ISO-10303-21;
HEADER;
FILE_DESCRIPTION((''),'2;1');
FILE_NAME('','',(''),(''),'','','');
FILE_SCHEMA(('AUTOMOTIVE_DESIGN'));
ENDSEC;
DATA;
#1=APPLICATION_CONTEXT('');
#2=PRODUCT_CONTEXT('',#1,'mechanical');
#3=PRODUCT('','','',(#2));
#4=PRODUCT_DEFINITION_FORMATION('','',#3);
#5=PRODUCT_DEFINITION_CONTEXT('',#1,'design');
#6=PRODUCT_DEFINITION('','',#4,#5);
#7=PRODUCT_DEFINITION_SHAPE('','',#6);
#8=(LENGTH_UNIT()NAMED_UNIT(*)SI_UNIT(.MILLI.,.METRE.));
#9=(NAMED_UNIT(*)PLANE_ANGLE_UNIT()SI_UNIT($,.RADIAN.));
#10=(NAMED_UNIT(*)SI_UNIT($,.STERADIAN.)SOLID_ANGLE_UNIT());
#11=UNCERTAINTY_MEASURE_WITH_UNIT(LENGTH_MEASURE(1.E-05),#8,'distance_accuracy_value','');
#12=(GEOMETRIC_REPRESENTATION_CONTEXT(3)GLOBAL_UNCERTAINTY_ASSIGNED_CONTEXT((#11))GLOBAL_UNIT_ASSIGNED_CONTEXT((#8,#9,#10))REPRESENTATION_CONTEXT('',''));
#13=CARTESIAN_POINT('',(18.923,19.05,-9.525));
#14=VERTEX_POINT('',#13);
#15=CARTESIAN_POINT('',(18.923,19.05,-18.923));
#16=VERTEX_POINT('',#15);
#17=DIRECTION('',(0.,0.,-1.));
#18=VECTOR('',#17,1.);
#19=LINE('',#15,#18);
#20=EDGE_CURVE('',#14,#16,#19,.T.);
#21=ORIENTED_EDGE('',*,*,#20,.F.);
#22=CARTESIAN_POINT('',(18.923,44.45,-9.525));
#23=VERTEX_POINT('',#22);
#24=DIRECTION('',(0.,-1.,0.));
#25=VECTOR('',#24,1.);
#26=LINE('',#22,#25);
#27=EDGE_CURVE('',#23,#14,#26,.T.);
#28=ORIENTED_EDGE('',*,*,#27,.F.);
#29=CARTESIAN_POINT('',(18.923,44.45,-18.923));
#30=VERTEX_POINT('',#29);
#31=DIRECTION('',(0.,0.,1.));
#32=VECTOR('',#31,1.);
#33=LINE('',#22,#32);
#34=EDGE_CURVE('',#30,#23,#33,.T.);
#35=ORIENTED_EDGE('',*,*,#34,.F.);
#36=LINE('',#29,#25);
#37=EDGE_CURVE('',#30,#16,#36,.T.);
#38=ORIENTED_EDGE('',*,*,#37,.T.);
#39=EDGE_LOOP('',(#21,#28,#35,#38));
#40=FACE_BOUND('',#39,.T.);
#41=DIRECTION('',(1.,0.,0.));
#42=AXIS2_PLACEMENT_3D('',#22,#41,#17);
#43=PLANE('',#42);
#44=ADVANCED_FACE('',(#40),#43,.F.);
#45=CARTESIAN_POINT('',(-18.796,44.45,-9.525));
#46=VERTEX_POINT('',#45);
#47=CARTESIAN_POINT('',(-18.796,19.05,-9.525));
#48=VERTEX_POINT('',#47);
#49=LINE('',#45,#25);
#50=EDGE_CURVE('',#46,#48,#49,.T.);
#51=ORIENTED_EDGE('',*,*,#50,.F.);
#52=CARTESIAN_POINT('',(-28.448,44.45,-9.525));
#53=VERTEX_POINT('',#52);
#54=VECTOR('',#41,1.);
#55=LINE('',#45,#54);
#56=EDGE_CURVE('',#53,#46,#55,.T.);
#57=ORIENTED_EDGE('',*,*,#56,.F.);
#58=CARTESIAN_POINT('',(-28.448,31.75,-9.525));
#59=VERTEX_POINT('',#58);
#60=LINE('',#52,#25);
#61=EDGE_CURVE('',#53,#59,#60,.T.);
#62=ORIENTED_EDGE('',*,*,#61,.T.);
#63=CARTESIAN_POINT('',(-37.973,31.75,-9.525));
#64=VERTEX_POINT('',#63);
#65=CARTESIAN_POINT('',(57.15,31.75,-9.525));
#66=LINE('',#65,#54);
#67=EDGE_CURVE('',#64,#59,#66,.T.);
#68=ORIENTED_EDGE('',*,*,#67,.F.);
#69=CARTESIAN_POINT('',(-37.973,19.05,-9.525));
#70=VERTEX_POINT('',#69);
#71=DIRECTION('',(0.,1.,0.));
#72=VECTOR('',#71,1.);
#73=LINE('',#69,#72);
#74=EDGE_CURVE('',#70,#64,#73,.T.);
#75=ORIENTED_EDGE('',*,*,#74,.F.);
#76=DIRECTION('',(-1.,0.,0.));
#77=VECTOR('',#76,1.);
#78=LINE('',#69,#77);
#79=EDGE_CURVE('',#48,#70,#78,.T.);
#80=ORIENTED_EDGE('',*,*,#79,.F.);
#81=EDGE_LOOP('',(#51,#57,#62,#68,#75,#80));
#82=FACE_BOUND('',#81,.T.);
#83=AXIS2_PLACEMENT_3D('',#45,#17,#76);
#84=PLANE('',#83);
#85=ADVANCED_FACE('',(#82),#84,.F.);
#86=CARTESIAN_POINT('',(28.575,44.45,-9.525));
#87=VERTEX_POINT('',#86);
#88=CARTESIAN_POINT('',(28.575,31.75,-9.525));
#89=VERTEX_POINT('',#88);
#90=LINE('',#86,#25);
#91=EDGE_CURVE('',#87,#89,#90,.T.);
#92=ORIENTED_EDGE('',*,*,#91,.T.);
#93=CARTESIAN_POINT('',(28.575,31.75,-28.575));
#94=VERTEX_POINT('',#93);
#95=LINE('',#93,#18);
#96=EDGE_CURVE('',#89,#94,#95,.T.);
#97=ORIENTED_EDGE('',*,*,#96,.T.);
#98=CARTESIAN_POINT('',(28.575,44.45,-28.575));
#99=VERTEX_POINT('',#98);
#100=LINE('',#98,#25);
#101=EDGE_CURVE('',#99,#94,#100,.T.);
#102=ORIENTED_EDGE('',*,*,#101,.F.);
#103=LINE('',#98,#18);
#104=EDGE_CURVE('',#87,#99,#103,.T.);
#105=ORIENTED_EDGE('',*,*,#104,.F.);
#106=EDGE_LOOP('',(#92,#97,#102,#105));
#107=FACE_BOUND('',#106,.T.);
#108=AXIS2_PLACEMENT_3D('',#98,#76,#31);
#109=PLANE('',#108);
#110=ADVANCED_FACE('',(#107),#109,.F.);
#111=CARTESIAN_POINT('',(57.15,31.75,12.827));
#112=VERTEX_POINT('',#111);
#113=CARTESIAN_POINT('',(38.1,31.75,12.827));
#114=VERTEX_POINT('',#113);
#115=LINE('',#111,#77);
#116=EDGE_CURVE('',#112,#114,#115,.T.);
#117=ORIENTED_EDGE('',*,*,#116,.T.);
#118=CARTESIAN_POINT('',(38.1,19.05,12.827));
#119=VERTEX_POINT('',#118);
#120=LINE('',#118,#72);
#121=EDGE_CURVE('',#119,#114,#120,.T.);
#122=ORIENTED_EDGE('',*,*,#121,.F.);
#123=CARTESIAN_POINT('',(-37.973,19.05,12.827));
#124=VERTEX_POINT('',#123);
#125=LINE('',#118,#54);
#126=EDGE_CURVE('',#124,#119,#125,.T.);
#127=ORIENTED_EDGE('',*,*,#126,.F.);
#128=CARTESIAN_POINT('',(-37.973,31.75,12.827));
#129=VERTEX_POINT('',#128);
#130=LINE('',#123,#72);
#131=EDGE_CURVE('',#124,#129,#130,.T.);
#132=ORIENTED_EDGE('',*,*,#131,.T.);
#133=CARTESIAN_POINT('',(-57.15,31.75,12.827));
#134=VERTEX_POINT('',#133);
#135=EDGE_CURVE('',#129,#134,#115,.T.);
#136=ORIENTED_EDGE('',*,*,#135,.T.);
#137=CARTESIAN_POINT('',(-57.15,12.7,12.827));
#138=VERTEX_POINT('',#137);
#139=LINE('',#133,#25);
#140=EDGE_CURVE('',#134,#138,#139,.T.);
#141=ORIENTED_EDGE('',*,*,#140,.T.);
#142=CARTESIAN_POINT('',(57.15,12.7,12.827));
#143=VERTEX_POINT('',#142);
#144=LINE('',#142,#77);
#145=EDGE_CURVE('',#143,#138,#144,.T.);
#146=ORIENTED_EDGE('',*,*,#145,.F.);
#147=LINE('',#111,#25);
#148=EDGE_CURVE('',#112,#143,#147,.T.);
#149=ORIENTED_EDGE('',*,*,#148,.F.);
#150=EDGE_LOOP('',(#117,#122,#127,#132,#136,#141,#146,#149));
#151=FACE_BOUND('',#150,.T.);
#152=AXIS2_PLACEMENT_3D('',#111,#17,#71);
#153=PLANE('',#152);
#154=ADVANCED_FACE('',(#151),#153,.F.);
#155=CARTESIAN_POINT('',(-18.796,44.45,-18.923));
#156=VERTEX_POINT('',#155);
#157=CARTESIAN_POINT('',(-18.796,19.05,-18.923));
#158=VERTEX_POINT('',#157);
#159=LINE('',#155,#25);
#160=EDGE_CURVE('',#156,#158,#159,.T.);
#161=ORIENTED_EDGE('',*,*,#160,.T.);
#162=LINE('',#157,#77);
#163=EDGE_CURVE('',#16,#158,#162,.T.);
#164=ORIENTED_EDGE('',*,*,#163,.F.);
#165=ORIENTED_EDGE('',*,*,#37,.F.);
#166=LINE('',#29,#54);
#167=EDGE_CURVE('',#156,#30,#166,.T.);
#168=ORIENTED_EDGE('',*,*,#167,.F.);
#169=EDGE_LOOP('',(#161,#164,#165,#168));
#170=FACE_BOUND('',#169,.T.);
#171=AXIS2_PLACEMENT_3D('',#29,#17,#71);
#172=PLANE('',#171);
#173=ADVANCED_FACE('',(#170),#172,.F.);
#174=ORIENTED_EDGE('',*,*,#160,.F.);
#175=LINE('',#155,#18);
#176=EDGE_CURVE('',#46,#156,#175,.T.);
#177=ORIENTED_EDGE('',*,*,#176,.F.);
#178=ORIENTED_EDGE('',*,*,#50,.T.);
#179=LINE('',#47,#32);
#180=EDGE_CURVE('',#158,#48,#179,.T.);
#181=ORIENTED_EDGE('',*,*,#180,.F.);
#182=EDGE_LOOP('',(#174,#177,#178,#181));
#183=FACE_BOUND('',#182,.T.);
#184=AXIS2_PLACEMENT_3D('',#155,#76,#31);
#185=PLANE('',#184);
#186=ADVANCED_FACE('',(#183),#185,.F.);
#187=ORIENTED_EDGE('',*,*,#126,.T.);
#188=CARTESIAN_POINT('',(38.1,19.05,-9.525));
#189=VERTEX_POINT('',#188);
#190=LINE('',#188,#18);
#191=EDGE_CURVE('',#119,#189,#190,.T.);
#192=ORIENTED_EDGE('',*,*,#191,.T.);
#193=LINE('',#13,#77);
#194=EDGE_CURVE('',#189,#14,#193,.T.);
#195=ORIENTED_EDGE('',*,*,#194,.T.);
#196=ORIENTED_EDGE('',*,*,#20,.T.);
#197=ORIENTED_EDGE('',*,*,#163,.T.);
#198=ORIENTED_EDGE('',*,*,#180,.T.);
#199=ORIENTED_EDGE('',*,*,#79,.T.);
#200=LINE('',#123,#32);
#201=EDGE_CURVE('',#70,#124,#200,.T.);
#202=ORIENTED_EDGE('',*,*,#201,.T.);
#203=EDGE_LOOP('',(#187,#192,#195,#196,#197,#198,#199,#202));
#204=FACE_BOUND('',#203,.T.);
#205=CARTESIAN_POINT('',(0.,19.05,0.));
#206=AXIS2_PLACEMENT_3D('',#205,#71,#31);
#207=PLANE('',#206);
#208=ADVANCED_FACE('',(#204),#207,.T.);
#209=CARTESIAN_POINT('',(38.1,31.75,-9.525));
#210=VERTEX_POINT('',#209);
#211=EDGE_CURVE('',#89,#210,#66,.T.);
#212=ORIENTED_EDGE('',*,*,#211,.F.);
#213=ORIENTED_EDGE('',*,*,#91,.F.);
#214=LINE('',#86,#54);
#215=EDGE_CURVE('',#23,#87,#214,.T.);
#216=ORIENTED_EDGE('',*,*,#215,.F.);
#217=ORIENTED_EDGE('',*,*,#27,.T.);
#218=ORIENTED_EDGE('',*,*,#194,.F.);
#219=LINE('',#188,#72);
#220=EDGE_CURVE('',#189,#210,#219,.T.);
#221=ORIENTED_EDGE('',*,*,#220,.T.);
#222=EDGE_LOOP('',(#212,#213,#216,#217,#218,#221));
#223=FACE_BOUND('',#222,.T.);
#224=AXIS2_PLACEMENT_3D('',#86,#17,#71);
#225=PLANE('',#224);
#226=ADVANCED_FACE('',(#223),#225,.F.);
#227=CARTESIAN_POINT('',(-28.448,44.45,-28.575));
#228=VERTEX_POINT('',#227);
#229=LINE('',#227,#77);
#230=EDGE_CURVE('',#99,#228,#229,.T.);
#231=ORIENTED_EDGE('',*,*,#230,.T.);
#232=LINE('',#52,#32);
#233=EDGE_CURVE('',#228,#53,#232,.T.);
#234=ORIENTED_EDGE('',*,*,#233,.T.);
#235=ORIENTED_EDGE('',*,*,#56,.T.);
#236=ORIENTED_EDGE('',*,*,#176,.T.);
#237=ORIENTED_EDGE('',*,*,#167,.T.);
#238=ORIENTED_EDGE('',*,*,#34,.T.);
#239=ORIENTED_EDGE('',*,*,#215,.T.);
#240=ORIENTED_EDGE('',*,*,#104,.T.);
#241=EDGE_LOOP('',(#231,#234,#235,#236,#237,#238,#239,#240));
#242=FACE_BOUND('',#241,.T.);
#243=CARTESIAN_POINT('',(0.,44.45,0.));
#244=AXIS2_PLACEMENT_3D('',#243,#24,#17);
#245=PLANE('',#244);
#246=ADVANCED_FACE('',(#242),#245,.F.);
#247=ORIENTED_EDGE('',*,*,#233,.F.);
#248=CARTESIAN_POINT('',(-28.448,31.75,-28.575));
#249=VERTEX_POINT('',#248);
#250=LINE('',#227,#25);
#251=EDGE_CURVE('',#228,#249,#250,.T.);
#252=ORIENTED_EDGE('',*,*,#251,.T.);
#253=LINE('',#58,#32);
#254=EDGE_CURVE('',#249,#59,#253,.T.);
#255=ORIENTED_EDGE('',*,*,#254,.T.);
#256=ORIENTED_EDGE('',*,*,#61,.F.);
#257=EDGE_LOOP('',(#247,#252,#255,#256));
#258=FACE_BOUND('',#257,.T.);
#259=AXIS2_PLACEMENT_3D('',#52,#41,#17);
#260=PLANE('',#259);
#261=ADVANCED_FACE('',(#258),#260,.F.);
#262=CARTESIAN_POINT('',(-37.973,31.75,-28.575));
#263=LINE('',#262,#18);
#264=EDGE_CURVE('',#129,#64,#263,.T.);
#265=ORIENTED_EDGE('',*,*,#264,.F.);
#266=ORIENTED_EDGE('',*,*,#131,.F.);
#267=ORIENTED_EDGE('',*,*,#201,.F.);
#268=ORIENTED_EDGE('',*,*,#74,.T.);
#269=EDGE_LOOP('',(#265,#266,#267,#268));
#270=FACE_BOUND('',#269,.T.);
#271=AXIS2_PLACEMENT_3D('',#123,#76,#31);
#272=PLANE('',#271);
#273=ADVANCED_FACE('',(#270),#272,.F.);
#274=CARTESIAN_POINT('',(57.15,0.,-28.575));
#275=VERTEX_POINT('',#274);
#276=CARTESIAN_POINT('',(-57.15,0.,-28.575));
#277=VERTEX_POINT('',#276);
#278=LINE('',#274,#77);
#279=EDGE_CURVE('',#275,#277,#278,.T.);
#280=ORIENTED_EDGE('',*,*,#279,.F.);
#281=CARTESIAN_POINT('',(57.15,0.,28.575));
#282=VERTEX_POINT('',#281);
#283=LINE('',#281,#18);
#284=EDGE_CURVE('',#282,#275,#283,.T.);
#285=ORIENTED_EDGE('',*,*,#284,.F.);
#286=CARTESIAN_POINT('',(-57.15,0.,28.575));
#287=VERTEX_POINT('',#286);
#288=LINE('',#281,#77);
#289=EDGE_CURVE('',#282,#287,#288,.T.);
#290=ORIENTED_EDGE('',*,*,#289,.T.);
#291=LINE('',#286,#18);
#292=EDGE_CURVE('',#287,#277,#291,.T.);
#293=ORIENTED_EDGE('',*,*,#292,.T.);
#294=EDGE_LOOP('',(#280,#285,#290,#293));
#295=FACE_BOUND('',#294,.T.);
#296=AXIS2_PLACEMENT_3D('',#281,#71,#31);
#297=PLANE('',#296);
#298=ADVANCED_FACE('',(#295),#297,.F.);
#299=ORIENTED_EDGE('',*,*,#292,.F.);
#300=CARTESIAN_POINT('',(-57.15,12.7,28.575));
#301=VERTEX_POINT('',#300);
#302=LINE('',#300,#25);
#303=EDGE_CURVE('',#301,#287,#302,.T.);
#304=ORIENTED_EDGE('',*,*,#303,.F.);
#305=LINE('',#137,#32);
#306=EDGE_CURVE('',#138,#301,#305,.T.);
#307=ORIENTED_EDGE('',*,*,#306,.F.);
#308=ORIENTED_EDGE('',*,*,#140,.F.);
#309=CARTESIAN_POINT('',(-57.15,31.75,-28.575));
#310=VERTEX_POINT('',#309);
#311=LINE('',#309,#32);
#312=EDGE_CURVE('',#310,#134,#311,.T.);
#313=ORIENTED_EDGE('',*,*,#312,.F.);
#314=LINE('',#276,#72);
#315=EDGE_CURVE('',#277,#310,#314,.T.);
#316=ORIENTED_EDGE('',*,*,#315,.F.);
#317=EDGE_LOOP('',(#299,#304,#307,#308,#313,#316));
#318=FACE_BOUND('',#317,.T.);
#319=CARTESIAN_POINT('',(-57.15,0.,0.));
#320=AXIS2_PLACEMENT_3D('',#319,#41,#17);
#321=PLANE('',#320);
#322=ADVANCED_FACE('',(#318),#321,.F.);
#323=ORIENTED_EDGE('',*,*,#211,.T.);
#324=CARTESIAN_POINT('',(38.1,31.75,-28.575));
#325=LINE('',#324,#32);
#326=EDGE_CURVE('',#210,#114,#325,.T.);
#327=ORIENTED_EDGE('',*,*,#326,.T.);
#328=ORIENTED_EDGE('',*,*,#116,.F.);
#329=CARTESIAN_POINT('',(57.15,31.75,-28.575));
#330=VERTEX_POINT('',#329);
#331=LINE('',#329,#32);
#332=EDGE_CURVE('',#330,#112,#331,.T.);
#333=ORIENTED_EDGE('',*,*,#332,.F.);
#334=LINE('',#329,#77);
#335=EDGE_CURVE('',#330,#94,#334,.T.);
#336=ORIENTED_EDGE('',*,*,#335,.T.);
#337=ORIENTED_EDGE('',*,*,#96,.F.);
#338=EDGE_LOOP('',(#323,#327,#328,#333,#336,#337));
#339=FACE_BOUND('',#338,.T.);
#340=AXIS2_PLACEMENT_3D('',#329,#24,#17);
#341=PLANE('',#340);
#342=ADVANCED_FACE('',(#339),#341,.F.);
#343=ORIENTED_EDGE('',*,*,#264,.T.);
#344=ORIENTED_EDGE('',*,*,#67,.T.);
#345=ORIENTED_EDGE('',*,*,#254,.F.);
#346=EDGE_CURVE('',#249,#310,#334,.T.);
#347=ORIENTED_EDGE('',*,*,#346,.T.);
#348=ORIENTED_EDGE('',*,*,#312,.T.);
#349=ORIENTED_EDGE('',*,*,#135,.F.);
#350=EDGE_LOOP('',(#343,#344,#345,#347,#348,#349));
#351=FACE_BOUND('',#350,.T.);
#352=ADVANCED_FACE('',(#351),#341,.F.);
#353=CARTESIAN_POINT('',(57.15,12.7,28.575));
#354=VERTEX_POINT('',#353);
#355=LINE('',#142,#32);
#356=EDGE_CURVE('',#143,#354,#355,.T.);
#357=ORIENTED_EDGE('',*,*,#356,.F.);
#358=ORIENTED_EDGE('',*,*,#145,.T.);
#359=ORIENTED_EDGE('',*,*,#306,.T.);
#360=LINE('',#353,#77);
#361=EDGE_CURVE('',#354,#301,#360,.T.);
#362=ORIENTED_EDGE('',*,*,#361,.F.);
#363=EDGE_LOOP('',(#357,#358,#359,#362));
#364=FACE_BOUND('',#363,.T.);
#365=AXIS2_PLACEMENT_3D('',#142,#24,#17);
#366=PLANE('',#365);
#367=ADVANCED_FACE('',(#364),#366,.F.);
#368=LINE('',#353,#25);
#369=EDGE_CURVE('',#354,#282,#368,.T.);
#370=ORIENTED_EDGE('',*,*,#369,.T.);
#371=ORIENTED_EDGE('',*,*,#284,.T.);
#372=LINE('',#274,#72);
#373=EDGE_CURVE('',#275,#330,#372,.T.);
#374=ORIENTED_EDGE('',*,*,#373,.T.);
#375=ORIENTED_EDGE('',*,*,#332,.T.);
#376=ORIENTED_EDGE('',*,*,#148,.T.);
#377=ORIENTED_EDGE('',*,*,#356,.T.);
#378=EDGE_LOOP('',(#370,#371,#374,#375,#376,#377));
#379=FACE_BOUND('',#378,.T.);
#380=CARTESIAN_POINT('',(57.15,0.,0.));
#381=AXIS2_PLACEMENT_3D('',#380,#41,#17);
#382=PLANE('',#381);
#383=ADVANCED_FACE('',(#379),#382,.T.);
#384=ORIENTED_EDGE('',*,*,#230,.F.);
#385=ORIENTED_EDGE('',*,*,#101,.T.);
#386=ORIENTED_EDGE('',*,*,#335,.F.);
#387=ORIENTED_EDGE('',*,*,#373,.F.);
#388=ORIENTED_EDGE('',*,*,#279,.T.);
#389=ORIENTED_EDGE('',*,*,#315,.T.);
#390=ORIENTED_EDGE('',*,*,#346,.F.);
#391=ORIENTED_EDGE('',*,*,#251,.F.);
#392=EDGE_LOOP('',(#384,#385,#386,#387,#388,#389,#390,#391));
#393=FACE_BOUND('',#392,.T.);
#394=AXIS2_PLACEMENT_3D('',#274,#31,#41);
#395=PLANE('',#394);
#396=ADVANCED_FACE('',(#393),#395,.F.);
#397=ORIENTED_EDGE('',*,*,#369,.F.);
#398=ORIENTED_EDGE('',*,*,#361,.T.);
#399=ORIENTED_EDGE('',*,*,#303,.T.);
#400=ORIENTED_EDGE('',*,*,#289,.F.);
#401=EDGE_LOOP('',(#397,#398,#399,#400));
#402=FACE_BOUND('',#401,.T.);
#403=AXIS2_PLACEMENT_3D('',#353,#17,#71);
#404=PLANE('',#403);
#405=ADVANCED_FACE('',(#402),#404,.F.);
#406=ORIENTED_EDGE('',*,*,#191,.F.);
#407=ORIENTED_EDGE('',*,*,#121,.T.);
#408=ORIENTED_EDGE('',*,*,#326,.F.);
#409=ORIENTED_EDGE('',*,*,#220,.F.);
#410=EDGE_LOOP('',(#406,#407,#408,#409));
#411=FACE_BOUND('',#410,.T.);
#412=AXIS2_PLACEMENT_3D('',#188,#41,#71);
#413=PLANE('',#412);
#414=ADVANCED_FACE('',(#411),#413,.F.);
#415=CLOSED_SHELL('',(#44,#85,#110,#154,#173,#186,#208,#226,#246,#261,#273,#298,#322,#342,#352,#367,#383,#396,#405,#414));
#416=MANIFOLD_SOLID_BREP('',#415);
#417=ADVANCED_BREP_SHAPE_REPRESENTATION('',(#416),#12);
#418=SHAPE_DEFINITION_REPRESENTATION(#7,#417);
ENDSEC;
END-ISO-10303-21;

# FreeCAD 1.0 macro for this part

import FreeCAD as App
import Part
import Sketcher
from FreeCAD import Vector
Q = App.Units.Quantity

doc = App.newDocument("Part")
body = doc.addObject("PartDesign::Body", "Body")

# Sketch on YZ plane
sketch1 = doc.addObject("Sketcher::SketchObject", "Sketch")
body.addObject(sketch1)
sketch1.AttachmentSupport = (doc.YZ_Plane, [""])
sketch1.MapMode = "FlatFace"
sketch1.addGeometry([
    Part.LineSegment(Vector(0, 28.575, 0), Vector(0, -28.575, 0)),  # 0
    Part.LineSegment(Vector(0, -28.575, 0), Vector(31.75, -28.575, 0)),  # 1
    Part.LineSegment(Vector(31.75, -28.575, 0), Vector(31.75, 12.827, 0)),  # 2
    Part.LineSegment(Vector(31.75, 12.827, 0), Vector(12.7, 12.827, 0)),  # 3
    Part.LineSegment(Vector(12.7, 12.827, 0), Vector(12.7, 28.575, 0)),  # 4
    Part.LineSegment(Vector(12.7, 28.575, 0), Vector(0, 28.575, 0)),  # 5
], False)
sketch1.addConstraint([
    Sketcher.Constraint("Coincident", 0, 2, 1, 1),
    Sketcher.Constraint("Coincident", 1, 2, 2, 1),
    Sketcher.Constraint("Coincident", 2, 2, 3, 1),
    Sketcher.Constraint("Coincident", 3, 2, 4, 1),
    Sketcher.Constraint("Coincident", 4, 2, 5, 1),
    Sketcher.Constraint("Coincident", 5, 2, 0, 1),
    Sketcher.Constraint("Vertical", 0),
    Sketcher.Constraint("Horizontal", 1),
    Sketcher.Constraint("Vertical", 2),
    Sketcher.Constraint("Horizontal", 3),
    Sketcher.Constraint("Vertical", 4),
    Sketcher.Constraint("Horizontal", 5),
    Sketcher.Constraint("Symmetric", 0, 2, 5, 2, -1, 1),
    Sketcher.Constraint("DistanceX", 5, 2, 5, 1, Q("0.5 in")),
    Sketcher.Constraint("DistanceX", 1, 1, 1, 2, Q("1.25 in")),
    Sketcher.Constraint("DistanceY", 0, 2, 0, 1, Q("2.25 in")),
    Sketcher.Constraint("DistanceY", 2, 1, 2, 2, Q("1.63 in")),
])
pad1 = doc.addObject("PartDesign::Pad", "Pad")
body.addObject(pad1)
pad1.Profile = sketch1
pad1.Length = Q("4.5 in")
pad1.Midplane = True

# Sketch on XZ plane
sketch2 = doc.addObject("Sketcher::SketchObject", "Sketch001")
body.addObject(sketch2)
sketch2.AttachmentSupport = (doc.XZ_Plane, [""])
sketch2.MapMode = "FlatFace"
sketch2.AttachmentOffset = App.Placement(Vector(0, 0, -1.25 * 25.4), App.Rotation())
sketch2.addGeometry([
    Part.LineSegment(Vector(28.575, -28.575, 0), Vector(-28.448, -28.575, 0)),  # 0
    Part.LineSegment(Vector(-28.448, -28.575, 0), Vector(-28.448, -9.525, 0)),  # 1
    Part.LineSegment(Vector(-28.448, -9.525, 0), Vector(-18.796, -9.525, 0)),  # 2
    Part.LineSegment(Vector(-18.796, -9.525, 0), Vector(-18.796, -18.923, 0)),  # 3
    Part.LineSegment(Vector(-18.796, -18.923, 0), Vector(18.923, -18.923, 0)),  # 4
    Part.LineSegment(Vector(18.923, -18.923, 0), Vector(18.923, -9.525, 0)),  # 5
    Part.LineSegment(Vector(18.923, -9.525, 0), Vector(28.575, -9.525, 0)),  # 6
    Part.LineSegment(Vector(28.575, -9.525, 0), Vector(28.575, -28.575, 0)),  # 7
], False)
sketch2.addConstraint([
    Sketcher.Constraint("Coincident", 0, 2, 1, 1),
    Sketcher.Constraint("Coincident", 1, 2, 2, 1),
    Sketcher.Constraint("Coincident", 2, 2, 3, 1),
    Sketcher.Constraint("Coincident", 3, 2, 4, 1),
    Sketcher.Constraint("Coincident", 4, 2, 5, 1),
    Sketcher.Constraint("Coincident", 5, 2, 6, 1),
    Sketcher.Constraint("Coincident", 6, 2, 7, 1),
    Sketcher.Constraint("Coincident", 7, 2, 0, 1),
    Sketcher.Constraint("Horizontal", 0),
    Sketcher.Constraint("Vertical", 1),
    Sketcher.Constraint("Horizontal", 2),
    Sketcher.Constraint("Vertical", 3),
    Sketcher.Constraint("Horizontal", 4),
    Sketcher.Constraint("Vertical", 5),
    Sketcher.Constraint("Horizontal", 6),
    Sketcher.Constraint("Vertical", 7),
    Sketcher.Constraint("Horizontal", 2, 2, 5, 2),
    Sketcher.Constraint("Equal", 2, 6),
    Sketcher.Constraint("DistanceX", 2, 1, 2, 2, Q("0.38 in")),
    Sketcher.Constraint("DistanceY", 1, 1, 1, 2, Q("0.75 in")),
    Sketcher.Constraint("DistanceY", 3, 2, 3, 1, Q("0.37 in")),
    Sketcher.Constraint("DistanceX", 0, 2, 0, 1, Q("2.245 in")),
    Sketcher.Constraint("DistanceX", 0, 2, -1, 1, Q("1.12 in")),
    Sketcher.Constraint("DistanceY", 0, 2, -1, 1, Q("1.125 in")),
])
pad2 = doc.addObject("PartDesign::Pad", "Pad001")
body.addObject(pad2)
pad2.Profile = sketch2
pad2.Length = Q("0.5 in")
pad2.Reversed = True

# Sketch on XZ plane
sketch3 = doc.addObject("Sketcher::SketchObject", "Sketch002")
body.addObject(sketch3)
sketch3.AttachmentSupport = (doc.XZ_Plane, [""])
sketch3.MapMode = "FlatFace"
sketch3.AttachmentOffset = App.Placement(Vector(0, 0, -1.75 * 25.4), App.Rotation())
sketch3.addGeometry([
    Part.LineSegment(Vector(-18.796, -18.923, 0), Vector(-18.796, -9.525, 0)),  # 0
    Part.LineSegment(Vector(-18.796, -9.525, 0), Vector(-37.973, -9.525, 0)),  # 1
    Part.LineSegment(Vector(-37.973, -9.525, 0), Vector(-37.973, 12.827, 0)),  # 2
    Part.LineSegment(Vector(-37.973, 12.827, 0), Vector(38.1, 12.827, 0)),  # 3
    Part.LineSegment(Vector(38.1, 12.827, 0), Vector(38.1, -9.525, 0)),  # 4
    Part.LineSegment(Vector(38.1, -9.525, 0), Vector(18.923, -9.525, 0)),  # 5
    Part.LineSegment(Vector(18.923, -9.525, 0), Vector(18.923, -18.923, 0)),  # 6
    Part.LineSegment(Vector(18.923, -18.923, 0), Vector(-18.796, -18.923, 0)),  # 7
], False)
sketch3.addConstraint([
    Sketcher.Constraint("Coincident", 0, 2, 1, 1),
    Sketcher.Constraint("Coincident", 1, 2, 2, 1),
    Sketcher.Constraint("Coincident", 2, 2, 3, 1),
    Sketcher.Constraint("Coincident", 3, 2, 4, 1),
    Sketcher.Constraint("Coincident", 4, 2, 5, 1),
    Sketcher.Constraint("Coincident", 5, 2, 6, 1),
    Sketcher.Constraint("Coincident", 6, 2, 7, 1),
    Sketcher.Constraint("Coincident", 7, 2, 0, 1),
    Sketcher.Constraint("Vertical", 0),
    Sketcher.Constraint("Horizontal", 1),
    Sketcher.Constraint("Vertical", 2),
    Sketcher.Constraint("Horizontal", 3),
    Sketcher.Constraint("Vertical", 4),
    Sketcher.Constraint("Horizontal", 5),
    Sketcher.Constraint("Vertical", 6),
    Sketcher.Constraint("Horizontal", 7),
    Sketcher.Constraint("Horizontal", 1, 2, 4, 2),
    Sketcher.Constraint("Equal", 1, 5),
    Sketcher.Constraint("DistanceY", 0, 1, 0, 2, Q("0.37 in")),
    Sketcher.Constraint("DistanceY", 2, 1, 2, 2, Q("0.88 in")),
    Sketcher.Constraint("DistanceX", -1, 1, 3, 2, Q("1.5 in")),
    Sketcher.Constraint("DistanceX", 1, 2, 1, 1, Q("0.755 in")),
    Sketcher.Constraint("DistanceX", 3, 1, 3, 2, Q("2.995 in")),
    Sketcher.Constraint("DistanceY", 0, 2, -1, 1, Q("0.375 in")),
])
pocket1 = doc.addObject("PartDesign::Pocket", "Pocket")
body.addObject(pocket1)
pocket1.Profile = sketch3
pocket1.Length = Q("1 in")
pocket1.Reversed = True

doc.recompute()
